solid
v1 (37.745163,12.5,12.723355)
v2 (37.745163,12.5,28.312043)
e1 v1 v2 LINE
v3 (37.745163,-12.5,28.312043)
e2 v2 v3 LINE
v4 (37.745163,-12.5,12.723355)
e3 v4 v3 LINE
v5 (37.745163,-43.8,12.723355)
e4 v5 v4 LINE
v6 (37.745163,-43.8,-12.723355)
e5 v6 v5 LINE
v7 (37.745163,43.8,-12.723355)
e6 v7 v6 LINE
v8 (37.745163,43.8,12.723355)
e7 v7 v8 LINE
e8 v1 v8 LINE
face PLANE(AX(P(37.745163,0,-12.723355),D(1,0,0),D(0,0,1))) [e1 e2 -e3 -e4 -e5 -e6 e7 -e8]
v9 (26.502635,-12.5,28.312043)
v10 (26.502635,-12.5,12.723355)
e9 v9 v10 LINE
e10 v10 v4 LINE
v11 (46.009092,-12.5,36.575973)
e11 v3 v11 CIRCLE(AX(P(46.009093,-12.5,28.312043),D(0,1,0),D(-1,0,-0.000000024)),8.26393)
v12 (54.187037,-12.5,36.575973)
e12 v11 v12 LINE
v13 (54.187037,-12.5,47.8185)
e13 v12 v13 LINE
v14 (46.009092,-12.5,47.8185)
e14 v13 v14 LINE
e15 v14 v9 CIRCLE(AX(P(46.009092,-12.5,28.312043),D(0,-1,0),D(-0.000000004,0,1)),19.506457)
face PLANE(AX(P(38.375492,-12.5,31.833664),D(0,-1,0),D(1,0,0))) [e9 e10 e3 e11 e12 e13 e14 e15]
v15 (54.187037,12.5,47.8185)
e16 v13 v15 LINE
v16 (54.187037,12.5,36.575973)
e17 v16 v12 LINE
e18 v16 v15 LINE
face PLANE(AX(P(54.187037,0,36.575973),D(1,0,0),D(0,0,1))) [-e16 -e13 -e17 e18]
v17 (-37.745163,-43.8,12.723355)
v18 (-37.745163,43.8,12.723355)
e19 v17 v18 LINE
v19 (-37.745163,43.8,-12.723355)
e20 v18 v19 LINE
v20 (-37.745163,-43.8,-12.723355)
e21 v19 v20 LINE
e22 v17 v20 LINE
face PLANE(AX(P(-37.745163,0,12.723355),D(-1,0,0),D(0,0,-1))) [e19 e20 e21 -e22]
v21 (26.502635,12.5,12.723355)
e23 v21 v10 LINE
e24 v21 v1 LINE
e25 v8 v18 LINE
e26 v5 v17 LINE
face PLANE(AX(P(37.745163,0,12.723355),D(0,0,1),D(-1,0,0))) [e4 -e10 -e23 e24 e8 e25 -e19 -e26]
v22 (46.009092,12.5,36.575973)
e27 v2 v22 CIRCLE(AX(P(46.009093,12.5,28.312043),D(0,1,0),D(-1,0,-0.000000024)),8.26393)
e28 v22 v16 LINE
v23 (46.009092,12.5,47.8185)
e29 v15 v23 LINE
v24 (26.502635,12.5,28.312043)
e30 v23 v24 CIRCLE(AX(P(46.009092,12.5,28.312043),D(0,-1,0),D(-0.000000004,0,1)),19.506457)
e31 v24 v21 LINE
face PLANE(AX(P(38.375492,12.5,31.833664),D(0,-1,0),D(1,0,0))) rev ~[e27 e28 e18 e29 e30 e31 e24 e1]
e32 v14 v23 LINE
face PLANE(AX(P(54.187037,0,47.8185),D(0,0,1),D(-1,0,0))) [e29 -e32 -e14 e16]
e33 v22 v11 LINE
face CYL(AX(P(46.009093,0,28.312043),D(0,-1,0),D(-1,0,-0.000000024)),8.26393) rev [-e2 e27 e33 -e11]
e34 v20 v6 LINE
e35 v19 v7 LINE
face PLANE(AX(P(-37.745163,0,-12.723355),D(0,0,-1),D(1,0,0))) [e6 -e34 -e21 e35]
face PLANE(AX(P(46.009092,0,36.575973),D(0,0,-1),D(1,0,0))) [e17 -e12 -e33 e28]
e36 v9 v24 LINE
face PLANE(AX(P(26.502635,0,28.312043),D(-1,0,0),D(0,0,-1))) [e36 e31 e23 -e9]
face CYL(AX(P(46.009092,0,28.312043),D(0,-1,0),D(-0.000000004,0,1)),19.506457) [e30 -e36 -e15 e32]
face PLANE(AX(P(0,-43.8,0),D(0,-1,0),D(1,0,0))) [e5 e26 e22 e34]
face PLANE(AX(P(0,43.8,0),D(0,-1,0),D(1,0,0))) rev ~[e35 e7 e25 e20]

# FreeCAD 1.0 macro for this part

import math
import FreeCAD as App
import Part
import Sketcher


def add_polygon(sketch, points):
    """Adds a closed chain of lines whose ends are joined by coincident constraints."""
    first, n = sketch.GeometryCount, len(points)
    for a, b in zip(points, points[1:] + points[:1]):
        sketch.addGeometry(Part.LineSegment(App.Vector(*a, 0), App.Vector(*b, 0)), False)
    for i in range(n):
        sketch.addConstraint(Sketcher.Constraint("Coincident", first + i, 2, first + (i + 1) % n, 1))

doc = App.newDocument("Part")
body = doc.addObject("PartDesign::Body", "Body")

# Sketch on XZ plane
sketch1 = body.newObject("Sketcher::SketchObject", "Sketch")
sketch1.AttachmentSupport = (doc.getObject("XZ_Plane"), [""])
sketch1.MapMode = "FlatFace"
sketch1.addGeometry([
    Part.LineSegment(App.Vector(27, 28, 0), App.Vector(27, 13, 0)),  # 0
    Part.LineSegment(App.Vector(27, 13, 0), App.Vector(38, 13, 0)),  # 1
    Part.LineSegment(App.Vector(38, 13, 0), App.Vector(38, 28, 0)),  # 2
    Part.ArcOfCircle(Part.Circle(App.Vector(46, 28, 0), App.Vector(0, 0, 1), 8), math.radians(90), math.radians(180)),  # 3
    Part.LineSegment(App.Vector(46, 37, 0), App.Vector(54, 37, 0)),  # 4
    Part.LineSegment(App.Vector(54, 37, 0), App.Vector(54, 48, 0)),  # 5
    Part.LineSegment(App.Vector(54, 48, 0), App.Vector(46, 48, 0)),  # 6
    Part.ArcOfCircle(Part.Circle(App.Vector(46, 28, 0), App.Vector(0, 0, 1), 20), math.radians(90), math.radians(180)),  # 7
], False)
sketch1.addConstraint([
    Sketcher.Constraint("Coincident", 0, 2, 1, 1),
    Sketcher.Constraint("Coincident", 1, 2, 2, 1),
    Sketcher.Constraint("Tangent", 2, 2, 3, 2),
    Sketcher.Constraint("Tangent", 3, 1, 4, 1),
    Sketcher.Constraint("Coincident", 4, 2, 5, 1),
    Sketcher.Constraint("Coincident", 5, 2, 6, 1),
    Sketcher.Constraint("Tangent", 6, 2, 7, 1),
    Sketcher.Constraint("Tangent", 7, 2, 0, 1),
    Sketcher.Constraint("Vertical", 0),
    Sketcher.Constraint("Horizontal", 1),
    Sketcher.Constraint("Vertical", 2),
    Sketcher.Constraint("Horizontal", 4),
    Sketcher.Constraint("Vertical", 5),
    Sketcher.Constraint("Horizontal", 6),
    Sketcher.Constraint("Coincident", 7, 3, 3, 3),
    Sketcher.Constraint("Radius", 3, 8.26393),
    Sketcher.Constraint("Radius", 7, 19.506457),
    Sketcher.Constraint("DistanceY", -1, 1, 5, 2, 47.8185),
    Sketcher.Constraint("DistanceX", 4, 1, 4, 2, 8.177945),
    Sketcher.Constraint("DistanceY", 0, 2, 0, 1, 15.588688),
    Sketcher.Constraint("DistanceX", -1, 1, 3, 3, 46.009093),
])
pad1 = body.newObject("PartDesign::Pad", "Pad")
pad1.Profile = sketch1
pad1.Length = 25
pad1.Midplane = True

# Sketch on XZ plane
sketch2 = body.newObject("Sketcher::SketchObject", "Sketch001")
sketch2.AttachmentSupport = (doc.getObject("XZ_Plane"), [""])
sketch2.MapMode = "FlatFace"
add_polygon(sketch2, [(-38, 13), (-38, -13), (38, -13), (38, 13)])  # lines 0-3
sketch2.addConstraint([
    Sketcher.Constraint("Vertical", 0),
    Sketcher.Constraint("Horizontal", 1),
    Sketcher.Constraint("Vertical", 2),
    Sketcher.Constraint("Horizontal", 3),
    Sketcher.Constraint("Symmetric", 0, 2, 2, 2, -1, 1),
    Sketcher.Constraint("DistanceY", 0, 2, 0, 1, 25.44671),
    Sketcher.Constraint("DistanceX", 1, 1, 1, 2, 75.490326),
])
pad2 = body.newObject("PartDesign::Pad", "Pad001")
pad2.Profile = sketch2
pad2.Length = 87.6
pad2.Midplane = True

doc.recompute()
